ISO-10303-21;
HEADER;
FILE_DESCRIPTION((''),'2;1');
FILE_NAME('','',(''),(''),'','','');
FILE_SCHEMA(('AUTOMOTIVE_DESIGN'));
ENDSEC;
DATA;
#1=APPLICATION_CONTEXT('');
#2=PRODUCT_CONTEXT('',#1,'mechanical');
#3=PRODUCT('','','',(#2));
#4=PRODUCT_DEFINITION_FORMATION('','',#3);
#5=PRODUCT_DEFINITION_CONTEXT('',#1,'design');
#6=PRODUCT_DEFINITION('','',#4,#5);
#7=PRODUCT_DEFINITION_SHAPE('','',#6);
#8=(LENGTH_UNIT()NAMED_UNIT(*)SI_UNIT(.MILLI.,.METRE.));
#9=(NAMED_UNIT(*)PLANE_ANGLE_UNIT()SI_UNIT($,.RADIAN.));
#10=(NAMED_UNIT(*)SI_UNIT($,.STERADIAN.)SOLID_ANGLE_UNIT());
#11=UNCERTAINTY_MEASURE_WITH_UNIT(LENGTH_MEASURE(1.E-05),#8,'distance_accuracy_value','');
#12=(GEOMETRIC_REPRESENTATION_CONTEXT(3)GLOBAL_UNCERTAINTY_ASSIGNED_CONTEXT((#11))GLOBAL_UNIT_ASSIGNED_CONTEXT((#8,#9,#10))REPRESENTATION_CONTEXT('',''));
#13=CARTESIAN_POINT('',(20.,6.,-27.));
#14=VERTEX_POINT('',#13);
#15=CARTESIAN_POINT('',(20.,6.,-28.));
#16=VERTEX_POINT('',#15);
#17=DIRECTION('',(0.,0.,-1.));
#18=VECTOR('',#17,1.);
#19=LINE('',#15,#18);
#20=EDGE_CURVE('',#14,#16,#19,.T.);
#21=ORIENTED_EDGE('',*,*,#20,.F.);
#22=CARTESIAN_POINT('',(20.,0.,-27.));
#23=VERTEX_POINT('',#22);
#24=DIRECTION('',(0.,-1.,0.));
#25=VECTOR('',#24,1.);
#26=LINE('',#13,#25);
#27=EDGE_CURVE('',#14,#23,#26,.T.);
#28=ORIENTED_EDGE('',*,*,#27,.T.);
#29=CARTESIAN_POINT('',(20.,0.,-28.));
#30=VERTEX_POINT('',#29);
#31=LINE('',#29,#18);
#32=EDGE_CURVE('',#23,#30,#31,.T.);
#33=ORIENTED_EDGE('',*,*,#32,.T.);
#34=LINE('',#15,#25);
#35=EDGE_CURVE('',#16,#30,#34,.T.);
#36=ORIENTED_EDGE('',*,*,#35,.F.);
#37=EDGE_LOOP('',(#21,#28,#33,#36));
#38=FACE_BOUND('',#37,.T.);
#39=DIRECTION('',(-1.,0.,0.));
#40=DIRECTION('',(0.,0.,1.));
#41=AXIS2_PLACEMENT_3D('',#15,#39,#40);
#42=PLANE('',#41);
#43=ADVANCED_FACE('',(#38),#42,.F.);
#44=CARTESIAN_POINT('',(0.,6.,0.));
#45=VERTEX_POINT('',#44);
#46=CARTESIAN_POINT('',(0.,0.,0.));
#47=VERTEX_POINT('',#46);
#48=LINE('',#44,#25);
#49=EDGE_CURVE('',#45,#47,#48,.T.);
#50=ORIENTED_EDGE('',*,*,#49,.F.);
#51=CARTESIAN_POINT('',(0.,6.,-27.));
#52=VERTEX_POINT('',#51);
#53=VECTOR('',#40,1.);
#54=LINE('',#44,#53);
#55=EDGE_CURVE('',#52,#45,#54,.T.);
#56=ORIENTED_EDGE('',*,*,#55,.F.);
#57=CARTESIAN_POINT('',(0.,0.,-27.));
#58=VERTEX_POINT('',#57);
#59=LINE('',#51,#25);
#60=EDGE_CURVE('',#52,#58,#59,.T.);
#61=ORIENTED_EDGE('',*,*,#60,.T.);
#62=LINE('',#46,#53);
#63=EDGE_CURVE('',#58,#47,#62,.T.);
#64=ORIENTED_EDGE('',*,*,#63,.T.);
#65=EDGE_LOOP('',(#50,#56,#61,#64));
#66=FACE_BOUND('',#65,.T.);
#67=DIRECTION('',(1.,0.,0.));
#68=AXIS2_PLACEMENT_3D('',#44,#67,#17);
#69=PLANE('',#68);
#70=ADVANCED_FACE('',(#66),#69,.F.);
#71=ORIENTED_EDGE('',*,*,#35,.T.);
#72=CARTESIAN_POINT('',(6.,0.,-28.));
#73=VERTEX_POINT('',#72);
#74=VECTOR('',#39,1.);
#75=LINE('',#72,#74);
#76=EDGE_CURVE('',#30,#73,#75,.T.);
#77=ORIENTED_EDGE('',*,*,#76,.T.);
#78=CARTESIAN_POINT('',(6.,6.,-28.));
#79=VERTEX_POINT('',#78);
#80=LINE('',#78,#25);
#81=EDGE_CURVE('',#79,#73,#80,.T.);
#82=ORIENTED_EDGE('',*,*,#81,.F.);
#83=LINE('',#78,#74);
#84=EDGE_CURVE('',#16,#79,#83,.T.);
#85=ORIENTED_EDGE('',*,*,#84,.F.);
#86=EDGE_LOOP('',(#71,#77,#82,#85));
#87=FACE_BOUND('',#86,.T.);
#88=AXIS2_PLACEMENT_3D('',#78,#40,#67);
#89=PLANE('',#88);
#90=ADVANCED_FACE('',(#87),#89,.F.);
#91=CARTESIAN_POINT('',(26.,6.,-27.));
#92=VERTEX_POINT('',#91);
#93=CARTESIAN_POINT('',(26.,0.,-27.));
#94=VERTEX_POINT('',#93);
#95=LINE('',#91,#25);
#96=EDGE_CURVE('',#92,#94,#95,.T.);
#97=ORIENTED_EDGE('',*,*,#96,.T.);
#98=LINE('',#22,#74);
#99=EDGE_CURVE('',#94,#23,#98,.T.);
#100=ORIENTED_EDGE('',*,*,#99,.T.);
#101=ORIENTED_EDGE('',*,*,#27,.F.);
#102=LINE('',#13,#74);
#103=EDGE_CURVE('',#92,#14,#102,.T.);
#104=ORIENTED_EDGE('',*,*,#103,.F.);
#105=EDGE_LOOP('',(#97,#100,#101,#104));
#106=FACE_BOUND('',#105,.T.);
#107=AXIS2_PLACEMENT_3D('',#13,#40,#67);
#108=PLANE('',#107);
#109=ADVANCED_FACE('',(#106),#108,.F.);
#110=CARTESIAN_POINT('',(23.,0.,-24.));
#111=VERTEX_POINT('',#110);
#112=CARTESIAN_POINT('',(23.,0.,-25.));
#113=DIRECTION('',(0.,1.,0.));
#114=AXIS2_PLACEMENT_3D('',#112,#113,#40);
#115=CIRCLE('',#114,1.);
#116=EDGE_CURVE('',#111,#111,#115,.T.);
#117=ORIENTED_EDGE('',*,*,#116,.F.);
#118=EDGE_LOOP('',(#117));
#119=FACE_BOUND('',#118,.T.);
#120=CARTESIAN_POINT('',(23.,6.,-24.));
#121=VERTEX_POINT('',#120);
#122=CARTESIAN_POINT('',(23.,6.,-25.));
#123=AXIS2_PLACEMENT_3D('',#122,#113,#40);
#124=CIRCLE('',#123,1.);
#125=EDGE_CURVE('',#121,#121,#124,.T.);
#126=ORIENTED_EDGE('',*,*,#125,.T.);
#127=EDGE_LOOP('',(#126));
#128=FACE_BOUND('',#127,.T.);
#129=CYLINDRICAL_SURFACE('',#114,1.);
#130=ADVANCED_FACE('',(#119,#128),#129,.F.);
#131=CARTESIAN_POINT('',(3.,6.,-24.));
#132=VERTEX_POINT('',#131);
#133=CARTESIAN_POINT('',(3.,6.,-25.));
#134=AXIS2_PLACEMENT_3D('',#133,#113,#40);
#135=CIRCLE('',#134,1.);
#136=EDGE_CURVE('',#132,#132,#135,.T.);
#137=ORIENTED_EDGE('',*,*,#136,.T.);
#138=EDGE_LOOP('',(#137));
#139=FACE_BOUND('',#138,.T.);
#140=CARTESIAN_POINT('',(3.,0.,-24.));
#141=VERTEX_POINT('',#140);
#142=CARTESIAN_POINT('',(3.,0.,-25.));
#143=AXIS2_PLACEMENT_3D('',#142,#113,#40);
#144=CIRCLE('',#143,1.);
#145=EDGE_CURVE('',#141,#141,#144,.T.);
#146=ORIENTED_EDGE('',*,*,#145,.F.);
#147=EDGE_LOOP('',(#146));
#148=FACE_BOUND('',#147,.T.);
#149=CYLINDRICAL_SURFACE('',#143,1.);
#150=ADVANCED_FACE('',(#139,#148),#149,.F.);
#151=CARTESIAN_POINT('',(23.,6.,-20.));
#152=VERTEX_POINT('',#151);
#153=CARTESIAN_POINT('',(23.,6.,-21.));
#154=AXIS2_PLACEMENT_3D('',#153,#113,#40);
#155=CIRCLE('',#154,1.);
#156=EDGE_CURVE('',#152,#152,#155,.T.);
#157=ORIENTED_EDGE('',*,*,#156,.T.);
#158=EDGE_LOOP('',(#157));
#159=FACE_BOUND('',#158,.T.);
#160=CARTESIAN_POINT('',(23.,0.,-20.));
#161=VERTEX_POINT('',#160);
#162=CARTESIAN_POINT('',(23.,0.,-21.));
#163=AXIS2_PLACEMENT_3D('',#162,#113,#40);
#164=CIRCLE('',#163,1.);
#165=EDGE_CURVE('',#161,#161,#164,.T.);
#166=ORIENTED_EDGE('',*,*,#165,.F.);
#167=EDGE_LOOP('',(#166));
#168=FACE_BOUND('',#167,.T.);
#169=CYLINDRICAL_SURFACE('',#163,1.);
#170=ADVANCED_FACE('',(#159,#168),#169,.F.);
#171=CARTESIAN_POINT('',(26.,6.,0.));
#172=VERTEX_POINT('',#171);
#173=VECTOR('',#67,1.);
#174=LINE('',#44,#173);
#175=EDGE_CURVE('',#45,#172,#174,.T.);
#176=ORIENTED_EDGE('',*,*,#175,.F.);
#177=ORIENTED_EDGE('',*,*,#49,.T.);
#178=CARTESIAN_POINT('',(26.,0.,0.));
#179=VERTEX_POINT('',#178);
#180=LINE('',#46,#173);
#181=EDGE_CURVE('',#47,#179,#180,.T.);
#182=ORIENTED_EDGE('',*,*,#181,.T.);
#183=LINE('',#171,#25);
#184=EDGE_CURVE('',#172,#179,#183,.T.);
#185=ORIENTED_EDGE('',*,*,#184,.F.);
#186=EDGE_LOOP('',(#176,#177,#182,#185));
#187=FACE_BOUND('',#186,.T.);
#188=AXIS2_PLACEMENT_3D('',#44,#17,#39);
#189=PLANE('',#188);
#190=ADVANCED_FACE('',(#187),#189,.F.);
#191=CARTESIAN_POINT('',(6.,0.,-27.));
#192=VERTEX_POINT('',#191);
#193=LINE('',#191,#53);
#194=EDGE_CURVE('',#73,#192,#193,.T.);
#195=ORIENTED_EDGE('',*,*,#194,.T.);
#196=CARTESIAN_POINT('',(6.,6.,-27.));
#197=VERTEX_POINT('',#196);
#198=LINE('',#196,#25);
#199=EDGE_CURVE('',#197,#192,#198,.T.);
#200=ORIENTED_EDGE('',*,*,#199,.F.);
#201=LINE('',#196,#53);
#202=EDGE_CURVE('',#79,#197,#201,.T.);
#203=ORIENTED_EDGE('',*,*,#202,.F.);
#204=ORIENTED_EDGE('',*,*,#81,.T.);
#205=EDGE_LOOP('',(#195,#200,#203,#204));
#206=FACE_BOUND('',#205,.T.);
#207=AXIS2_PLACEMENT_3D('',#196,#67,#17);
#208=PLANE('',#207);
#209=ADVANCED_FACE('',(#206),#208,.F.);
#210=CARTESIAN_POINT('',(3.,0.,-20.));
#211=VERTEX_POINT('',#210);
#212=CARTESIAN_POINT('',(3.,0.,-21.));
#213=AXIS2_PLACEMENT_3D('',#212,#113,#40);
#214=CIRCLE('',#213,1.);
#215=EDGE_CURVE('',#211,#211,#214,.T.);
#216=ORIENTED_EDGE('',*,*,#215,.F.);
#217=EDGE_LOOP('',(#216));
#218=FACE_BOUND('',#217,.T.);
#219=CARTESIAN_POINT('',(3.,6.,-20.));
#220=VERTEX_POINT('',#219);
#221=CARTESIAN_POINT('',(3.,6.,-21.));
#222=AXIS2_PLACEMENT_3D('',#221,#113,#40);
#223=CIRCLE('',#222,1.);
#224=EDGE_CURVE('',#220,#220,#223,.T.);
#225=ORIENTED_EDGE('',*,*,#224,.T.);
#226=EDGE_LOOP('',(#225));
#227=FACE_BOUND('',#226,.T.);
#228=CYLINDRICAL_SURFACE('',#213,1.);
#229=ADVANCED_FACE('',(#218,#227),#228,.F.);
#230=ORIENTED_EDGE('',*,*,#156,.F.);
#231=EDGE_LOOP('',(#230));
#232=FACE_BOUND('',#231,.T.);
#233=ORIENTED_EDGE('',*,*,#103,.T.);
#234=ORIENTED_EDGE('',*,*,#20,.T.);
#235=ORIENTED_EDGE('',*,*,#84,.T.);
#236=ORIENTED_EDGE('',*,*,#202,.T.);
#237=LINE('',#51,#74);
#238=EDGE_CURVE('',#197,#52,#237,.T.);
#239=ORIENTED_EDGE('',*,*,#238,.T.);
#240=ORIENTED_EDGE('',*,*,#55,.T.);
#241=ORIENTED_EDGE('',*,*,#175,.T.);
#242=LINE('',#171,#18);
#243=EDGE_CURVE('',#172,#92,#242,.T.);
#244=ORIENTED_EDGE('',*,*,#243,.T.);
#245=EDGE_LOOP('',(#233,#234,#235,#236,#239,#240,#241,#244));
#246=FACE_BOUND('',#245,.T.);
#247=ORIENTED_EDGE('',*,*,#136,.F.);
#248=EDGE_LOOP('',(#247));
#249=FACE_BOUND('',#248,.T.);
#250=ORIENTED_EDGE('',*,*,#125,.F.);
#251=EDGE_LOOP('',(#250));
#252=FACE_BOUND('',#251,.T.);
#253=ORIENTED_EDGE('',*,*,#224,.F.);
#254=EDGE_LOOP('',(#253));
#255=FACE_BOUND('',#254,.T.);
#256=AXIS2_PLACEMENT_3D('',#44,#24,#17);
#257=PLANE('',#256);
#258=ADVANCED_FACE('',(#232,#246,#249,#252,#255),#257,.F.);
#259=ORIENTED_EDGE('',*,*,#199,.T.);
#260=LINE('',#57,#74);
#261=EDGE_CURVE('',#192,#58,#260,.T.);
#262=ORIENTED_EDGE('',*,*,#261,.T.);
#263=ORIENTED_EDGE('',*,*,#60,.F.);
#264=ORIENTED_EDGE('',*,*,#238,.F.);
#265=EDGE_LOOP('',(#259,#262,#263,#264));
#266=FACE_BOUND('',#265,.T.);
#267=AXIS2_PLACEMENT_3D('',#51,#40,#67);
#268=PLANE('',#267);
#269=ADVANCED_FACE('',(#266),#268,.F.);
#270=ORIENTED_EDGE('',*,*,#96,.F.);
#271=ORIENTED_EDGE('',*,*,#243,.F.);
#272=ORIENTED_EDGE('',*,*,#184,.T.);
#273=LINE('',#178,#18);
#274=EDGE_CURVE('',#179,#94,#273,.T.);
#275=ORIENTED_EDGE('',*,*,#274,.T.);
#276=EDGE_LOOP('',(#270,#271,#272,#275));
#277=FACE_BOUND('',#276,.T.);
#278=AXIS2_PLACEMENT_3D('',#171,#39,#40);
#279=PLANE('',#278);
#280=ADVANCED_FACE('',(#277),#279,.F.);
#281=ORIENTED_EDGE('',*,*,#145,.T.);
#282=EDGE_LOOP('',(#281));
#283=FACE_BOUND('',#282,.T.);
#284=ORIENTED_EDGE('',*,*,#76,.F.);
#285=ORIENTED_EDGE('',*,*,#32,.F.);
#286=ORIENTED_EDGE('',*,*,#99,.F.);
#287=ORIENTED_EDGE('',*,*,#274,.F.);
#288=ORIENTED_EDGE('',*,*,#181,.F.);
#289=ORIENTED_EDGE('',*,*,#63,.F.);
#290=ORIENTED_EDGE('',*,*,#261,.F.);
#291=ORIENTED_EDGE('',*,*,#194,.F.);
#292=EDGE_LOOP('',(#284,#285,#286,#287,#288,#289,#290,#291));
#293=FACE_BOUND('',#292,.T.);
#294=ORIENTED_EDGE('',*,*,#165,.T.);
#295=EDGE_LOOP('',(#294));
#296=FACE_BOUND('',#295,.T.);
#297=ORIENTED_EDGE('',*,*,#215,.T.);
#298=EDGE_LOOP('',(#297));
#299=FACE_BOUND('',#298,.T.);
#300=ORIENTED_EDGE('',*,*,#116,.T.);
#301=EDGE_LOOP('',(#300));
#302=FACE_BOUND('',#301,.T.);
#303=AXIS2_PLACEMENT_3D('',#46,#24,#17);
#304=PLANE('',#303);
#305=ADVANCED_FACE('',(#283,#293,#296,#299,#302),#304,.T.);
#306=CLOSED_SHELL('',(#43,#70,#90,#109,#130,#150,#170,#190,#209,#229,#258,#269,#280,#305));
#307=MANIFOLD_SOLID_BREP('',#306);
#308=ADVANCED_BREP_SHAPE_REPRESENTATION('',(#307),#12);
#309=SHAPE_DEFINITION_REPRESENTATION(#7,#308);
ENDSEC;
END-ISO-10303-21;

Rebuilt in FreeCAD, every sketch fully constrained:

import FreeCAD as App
import Part
import Sketcher
from FreeCAD import Vector
Q = App.Units.Quantity

doc = App.newDocument("Part")
params = doc.addObject("Spreadsheet::Sheet", "Params")
for row, (alias, value) in enumerate([
    ("sketch1_width", "6 mm"),
    ("sketch1_width2", "26 mm"),
    ("sketch1_height", "27 mm"),
    ("sketch1_height2", "1 mm"),
    ("pad1_length", "6 mm"),
    ("sketch2_diameter", "2 mm"),
], start=1):
    params.set(f"A{row}", alias)
    params.set(f"B{row}", "=" + value)
    params.setAlias(f"B{row}", alias)

body = doc.addObject("PartDesign::Body", "Body")

# Sketch on XZ plane
sketch1 = body.newObject("Sketcher::SketchObject", "Sketch")
sketch1.AttachmentSupport = (doc.getObject("XZ_Plane"), [""])
sketch1.MapMode = "FlatFace"
sketch1.addGeometry([
    Part.LineSegment(Vector(6, -27, 0), Vector(0, -27, 0)),  # 0
    Part.LineSegment(Vector(0, -27, 0), Vector(0, 0, 0)),  # 1
    Part.LineSegment(Vector(0, 0, 0), Vector(26, 0, 0)),  # 2
    Part.LineSegment(Vector(26, 0, 0), Vector(26, -27, 0)),  # 3
    Part.LineSegment(Vector(26, -27, 0), Vector(20, -27, 0)),  # 4
    Part.LineSegment(Vector(20, -27, 0), Vector(20, -28, 0)),  # 5
    Part.LineSegment(Vector(20, -28, 0), Vector(6, -28, 0)),  # 6
    Part.LineSegment(Vector(6, -28, 0), Vector(6, -27, 0)),  # 7
], False)
sketch1.addConstraint([
    Sketcher.Constraint("Coincident", 0, 2, 1, 1),
    Sketcher.Constraint("Coincident", 1, 2, 2, 1),
    Sketcher.Constraint("Coincident", 2, 2, 3, 1),
    Sketcher.Constraint("Coincident", 3, 2, 4, 1),
    Sketcher.Constraint("Coincident", 4, 2, 5, 1),
    Sketcher.Constraint("Coincident", 5, 2, 6, 1),
    Sketcher.Constraint("Coincident", 6, 2, 7, 1),
    Sketcher.Constraint("Coincident", 7, 2, 0, 1),
    Sketcher.Constraint("Horizontal", 0),
    Sketcher.Constraint("Vertical", 1),
    Sketcher.Constraint("Horizontal", 2),
    Sketcher.Constraint("Vertical", 3),
    Sketcher.Constraint("Horizontal", 4),
    Sketcher.Constraint("Vertical", 5),
    Sketcher.Constraint("Horizontal", 6),
    Sketcher.Constraint("Vertical", 7),
    Sketcher.Constraint("Coincident", 1, 2, -1, 1),
    Sketcher.Constraint("Horizontal", 0, 2, 3, 2),
    Sketcher.Constraint("Equal", 0, 4),
    Sketcher.Constraint("DistanceX", 0, 2, 0, 1, Q("6 mm")),
    Sketcher.Constraint("DistanceX", 2, 1, 2, 2, Q("26 mm")),
    Sketcher.Constraint("DistanceY", 1, 1, 1, 2, Q("27 mm")),
    Sketcher.Constraint("DistanceY", 5, 2, 5, 1, Q("1 mm")),
])
sketch1.setExpression("Constraints[19]", "Params.sketch1_width")
sketch1.setExpression("Constraints[20]", "Params.sketch1_width2")
sketch1.setExpression("Constraints[21]", "Params.sketch1_height")
sketch1.setExpression("Constraints[22]", "Params.sketch1_height2")
pad1 = body.newObject("PartDesign::Pad", "Pad")
pad1.Profile = sketch1
pad1.setExpression("Length", "Params.pad1_length")
pad1.Reversed = True

# Sketch on XZ plane
sketch2 = body.newObject("Sketcher::SketchObject", "Sketch001")
sketch2.AttachmentSupport = (doc.getObject("XZ_Plane"), [""])
sketch2.MapMode = "FlatFace"
sketch2.AttachmentOffset = App.Placement(Vector(0, 0, -6), App.Rotation())
sketch2.addGeometry([
    Part.Circle(Vector(3, -25, 0), Vector(0, 0, 1), 1),
    Part.Circle(Vector(23, -25, 0), Vector(0, 0, 1), 1),
    Part.Circle(Vector(3, -21, 0), Vector(0, 0, 1), 1),
    Part.Circle(Vector(23, -21, 0), Vector(0, 0, 1), 1),
], False)
sketch2.addConstraint([
    Sketcher.Constraint("Equal", 0, 1),
    Sketcher.Constraint("Equal", 1, 2),
    Sketcher.Constraint("Equal", 2, 3),
    Sketcher.Constraint("Horizontal", 0, 3, 1, 3),
    Sketcher.Constraint("Horizontal", 2, 3, 3, 3),
    Sketcher.Constraint("Vertical", 0, 3, 2, 3),
    Sketcher.Constraint("Vertical", 1, 3, 3, 3),
    Sketcher.Constraint("Diameter", 0, Q("2 mm")),
    Sketcher.Constraint("DistanceX", -1, 1, 0, 3, Q("3 mm")),
    Sketcher.Constraint("DistanceY", 0, 3, -1, 1, Q("25 mm")),
    Sketcher.Constraint("DistanceX", -1, 1, 1, 3, Q("23 mm")),
    Sketcher.Constraint("DistanceY", 2, 3, -1, 1, Q("21 mm")),
])
sketch2.setExpression("Constraints[7]", "Params.sketch2_diameter")
pocket1 = body.newObject("PartDesign::Pocket", "Pocket")
pocket1.Profile = sketch2
pocket1.Type = "ThroughAll"
pocket1.Reversed = True

doc.recompute()
